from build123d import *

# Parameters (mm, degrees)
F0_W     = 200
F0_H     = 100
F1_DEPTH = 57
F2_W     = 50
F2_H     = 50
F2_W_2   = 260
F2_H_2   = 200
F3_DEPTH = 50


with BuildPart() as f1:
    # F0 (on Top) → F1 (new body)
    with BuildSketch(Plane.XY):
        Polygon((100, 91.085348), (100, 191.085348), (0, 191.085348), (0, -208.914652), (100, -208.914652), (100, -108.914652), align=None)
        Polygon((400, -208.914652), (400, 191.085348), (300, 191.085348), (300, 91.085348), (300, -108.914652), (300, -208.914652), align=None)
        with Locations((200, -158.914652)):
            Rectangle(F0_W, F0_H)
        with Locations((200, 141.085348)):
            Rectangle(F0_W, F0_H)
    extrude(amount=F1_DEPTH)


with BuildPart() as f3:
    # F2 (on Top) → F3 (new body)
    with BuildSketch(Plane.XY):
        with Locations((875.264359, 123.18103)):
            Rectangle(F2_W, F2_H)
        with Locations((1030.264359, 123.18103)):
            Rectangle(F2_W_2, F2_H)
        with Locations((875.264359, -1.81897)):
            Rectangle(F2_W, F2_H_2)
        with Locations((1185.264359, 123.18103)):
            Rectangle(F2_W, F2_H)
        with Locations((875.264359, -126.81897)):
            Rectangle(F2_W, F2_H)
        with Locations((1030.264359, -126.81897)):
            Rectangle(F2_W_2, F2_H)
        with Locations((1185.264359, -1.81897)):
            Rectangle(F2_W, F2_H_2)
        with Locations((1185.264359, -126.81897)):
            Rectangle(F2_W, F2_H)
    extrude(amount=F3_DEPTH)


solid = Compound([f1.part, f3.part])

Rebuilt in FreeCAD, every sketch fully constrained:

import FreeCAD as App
import Part
import Sketcher
from FreeCAD import Vector


def add_polygon(sketch, points):
    """Adds a closed chain of lines whose ends are joined by coincident constraints."""
    first, n = sketch.GeometryCount, len(points)
    for a, b in zip(points, points[1:] + points[:1]):
        sketch.addGeometry(Part.LineSegment(App.Vector(*a, 0), App.Vector(*b, 0)), False)
    for i in range(n):
        sketch.addConstraint(Sketcher.Constraint("Coincident", first + i, 2, first + (i + 1) % n, 1))

doc = App.newDocument("Part")
body = doc.addObject("PartDesign::Body", "Body")

sketch1 = body.newObject("Sketcher::SketchObject", "Sketch")
sketch1.AttachmentSupport = (doc.getObject("XY_Plane"), [""])
sketch1.MapMode = "FlatFace"
add_polygon(sketch1, [(0, 191), (0, -209), (400, -209), (400, 191)])
add_polygon(sketch1, [(300, 91), (300, -109), (100, -109), (100, 91)])
sketch1.addConstraint([
    Sketcher.Constraint("Vertical", 0),
    Sketcher.Constraint("Horizontal", 1),
    Sketcher.Constraint("Vertical", 2),
    Sketcher.Constraint("Horizontal", 3),
    Sketcher.Constraint("Vertical", 4),
    Sketcher.Constraint("Horizontal", 5),
    Sketcher.Constraint("Vertical", 6),
    Sketcher.Constraint("Horizontal", 7),
    Sketcher.Constraint("PointOnObject", 0, 2, -2),
    Sketcher.Constraint("Equal", 3, 0),
    Sketcher.Constraint("Equal", 7, 4),
    Sketcher.Constraint("DistanceX", 1, 1, 1, 2, 400.0),
    Sketcher.Constraint("DistanceX", 5, 2, 5, 1, 200.0),
    Sketcher.Constraint("DistanceX", -1, 1, 4, 2, 300.0),
    Sketcher.Constraint("DistanceY", 1, 2, 4, 2, 100.0),
    Sketcher.Constraint("DistanceY", 0, 2, -1, 1, 208.914652),
])
pad1 = body.newObject("PartDesign::Pad", "Pad")
pad1.Profile = sketch1
pad1.Length = 57
body2 = doc.addObject("PartDesign::Body", "Body001")

sketch2 = body2.newObject("Sketcher::SketchObject", "Sketch001")
sketch2.AttachmentSupport = (doc.getObject("XY_Plane001"), [""])
sketch2.MapMode = "FlatFace"
add_polygon(sketch2, [(850, -152), (1210, -152), (1210, 148), (850, 148)])
add_polygon(sketch2, [(1160, -102), (900, -102), (900, 98), (1160, 98)])
sketch2.addConstraint([
    Sketcher.Constraint("Horizontal", 0),
    Sketcher.Constraint("Vertical", 1),
    Sketcher.Constraint("Horizontal", 2),
    Sketcher.Constraint("Vertical", 3),
    Sketcher.Constraint("Horizontal", 4),
    Sketcher.Constraint("Vertical", 5),
    Sketcher.Constraint("Horizontal", 6),
    Sketcher.Constraint("Vertical", 7),
    Sketcher.Constraint("DistanceX", 0, 1, 0, 2, 360.0),
    Sketcher.Constraint("DistanceX", 4, 2, 4, 1, 260.0),
    Sketcher.Constraint("DistanceY", 1, 1, 1, 2, 300.0),
    Sketcher.Constraint("DistanceY", 5, 1, 5, 2, 200.0),
    Sketcher.Constraint("DistanceX", 3, 2, 4, 2, 50.0),
    Sketcher.Constraint("DistanceY", 3, 2, 4, 2, 50.0),
    Sketcher.Constraint("DistanceX", -1, 1, 0, 2, 1210.264359),
    Sketcher.Constraint("DistanceY", 0, 2, -1, 1, 151.81897),
])
pad2 = body2.newObject("PartDesign::Pad", "Pad001")
pad2.Profile = sketch2
pad2.Length = 50

doc.recompute()
